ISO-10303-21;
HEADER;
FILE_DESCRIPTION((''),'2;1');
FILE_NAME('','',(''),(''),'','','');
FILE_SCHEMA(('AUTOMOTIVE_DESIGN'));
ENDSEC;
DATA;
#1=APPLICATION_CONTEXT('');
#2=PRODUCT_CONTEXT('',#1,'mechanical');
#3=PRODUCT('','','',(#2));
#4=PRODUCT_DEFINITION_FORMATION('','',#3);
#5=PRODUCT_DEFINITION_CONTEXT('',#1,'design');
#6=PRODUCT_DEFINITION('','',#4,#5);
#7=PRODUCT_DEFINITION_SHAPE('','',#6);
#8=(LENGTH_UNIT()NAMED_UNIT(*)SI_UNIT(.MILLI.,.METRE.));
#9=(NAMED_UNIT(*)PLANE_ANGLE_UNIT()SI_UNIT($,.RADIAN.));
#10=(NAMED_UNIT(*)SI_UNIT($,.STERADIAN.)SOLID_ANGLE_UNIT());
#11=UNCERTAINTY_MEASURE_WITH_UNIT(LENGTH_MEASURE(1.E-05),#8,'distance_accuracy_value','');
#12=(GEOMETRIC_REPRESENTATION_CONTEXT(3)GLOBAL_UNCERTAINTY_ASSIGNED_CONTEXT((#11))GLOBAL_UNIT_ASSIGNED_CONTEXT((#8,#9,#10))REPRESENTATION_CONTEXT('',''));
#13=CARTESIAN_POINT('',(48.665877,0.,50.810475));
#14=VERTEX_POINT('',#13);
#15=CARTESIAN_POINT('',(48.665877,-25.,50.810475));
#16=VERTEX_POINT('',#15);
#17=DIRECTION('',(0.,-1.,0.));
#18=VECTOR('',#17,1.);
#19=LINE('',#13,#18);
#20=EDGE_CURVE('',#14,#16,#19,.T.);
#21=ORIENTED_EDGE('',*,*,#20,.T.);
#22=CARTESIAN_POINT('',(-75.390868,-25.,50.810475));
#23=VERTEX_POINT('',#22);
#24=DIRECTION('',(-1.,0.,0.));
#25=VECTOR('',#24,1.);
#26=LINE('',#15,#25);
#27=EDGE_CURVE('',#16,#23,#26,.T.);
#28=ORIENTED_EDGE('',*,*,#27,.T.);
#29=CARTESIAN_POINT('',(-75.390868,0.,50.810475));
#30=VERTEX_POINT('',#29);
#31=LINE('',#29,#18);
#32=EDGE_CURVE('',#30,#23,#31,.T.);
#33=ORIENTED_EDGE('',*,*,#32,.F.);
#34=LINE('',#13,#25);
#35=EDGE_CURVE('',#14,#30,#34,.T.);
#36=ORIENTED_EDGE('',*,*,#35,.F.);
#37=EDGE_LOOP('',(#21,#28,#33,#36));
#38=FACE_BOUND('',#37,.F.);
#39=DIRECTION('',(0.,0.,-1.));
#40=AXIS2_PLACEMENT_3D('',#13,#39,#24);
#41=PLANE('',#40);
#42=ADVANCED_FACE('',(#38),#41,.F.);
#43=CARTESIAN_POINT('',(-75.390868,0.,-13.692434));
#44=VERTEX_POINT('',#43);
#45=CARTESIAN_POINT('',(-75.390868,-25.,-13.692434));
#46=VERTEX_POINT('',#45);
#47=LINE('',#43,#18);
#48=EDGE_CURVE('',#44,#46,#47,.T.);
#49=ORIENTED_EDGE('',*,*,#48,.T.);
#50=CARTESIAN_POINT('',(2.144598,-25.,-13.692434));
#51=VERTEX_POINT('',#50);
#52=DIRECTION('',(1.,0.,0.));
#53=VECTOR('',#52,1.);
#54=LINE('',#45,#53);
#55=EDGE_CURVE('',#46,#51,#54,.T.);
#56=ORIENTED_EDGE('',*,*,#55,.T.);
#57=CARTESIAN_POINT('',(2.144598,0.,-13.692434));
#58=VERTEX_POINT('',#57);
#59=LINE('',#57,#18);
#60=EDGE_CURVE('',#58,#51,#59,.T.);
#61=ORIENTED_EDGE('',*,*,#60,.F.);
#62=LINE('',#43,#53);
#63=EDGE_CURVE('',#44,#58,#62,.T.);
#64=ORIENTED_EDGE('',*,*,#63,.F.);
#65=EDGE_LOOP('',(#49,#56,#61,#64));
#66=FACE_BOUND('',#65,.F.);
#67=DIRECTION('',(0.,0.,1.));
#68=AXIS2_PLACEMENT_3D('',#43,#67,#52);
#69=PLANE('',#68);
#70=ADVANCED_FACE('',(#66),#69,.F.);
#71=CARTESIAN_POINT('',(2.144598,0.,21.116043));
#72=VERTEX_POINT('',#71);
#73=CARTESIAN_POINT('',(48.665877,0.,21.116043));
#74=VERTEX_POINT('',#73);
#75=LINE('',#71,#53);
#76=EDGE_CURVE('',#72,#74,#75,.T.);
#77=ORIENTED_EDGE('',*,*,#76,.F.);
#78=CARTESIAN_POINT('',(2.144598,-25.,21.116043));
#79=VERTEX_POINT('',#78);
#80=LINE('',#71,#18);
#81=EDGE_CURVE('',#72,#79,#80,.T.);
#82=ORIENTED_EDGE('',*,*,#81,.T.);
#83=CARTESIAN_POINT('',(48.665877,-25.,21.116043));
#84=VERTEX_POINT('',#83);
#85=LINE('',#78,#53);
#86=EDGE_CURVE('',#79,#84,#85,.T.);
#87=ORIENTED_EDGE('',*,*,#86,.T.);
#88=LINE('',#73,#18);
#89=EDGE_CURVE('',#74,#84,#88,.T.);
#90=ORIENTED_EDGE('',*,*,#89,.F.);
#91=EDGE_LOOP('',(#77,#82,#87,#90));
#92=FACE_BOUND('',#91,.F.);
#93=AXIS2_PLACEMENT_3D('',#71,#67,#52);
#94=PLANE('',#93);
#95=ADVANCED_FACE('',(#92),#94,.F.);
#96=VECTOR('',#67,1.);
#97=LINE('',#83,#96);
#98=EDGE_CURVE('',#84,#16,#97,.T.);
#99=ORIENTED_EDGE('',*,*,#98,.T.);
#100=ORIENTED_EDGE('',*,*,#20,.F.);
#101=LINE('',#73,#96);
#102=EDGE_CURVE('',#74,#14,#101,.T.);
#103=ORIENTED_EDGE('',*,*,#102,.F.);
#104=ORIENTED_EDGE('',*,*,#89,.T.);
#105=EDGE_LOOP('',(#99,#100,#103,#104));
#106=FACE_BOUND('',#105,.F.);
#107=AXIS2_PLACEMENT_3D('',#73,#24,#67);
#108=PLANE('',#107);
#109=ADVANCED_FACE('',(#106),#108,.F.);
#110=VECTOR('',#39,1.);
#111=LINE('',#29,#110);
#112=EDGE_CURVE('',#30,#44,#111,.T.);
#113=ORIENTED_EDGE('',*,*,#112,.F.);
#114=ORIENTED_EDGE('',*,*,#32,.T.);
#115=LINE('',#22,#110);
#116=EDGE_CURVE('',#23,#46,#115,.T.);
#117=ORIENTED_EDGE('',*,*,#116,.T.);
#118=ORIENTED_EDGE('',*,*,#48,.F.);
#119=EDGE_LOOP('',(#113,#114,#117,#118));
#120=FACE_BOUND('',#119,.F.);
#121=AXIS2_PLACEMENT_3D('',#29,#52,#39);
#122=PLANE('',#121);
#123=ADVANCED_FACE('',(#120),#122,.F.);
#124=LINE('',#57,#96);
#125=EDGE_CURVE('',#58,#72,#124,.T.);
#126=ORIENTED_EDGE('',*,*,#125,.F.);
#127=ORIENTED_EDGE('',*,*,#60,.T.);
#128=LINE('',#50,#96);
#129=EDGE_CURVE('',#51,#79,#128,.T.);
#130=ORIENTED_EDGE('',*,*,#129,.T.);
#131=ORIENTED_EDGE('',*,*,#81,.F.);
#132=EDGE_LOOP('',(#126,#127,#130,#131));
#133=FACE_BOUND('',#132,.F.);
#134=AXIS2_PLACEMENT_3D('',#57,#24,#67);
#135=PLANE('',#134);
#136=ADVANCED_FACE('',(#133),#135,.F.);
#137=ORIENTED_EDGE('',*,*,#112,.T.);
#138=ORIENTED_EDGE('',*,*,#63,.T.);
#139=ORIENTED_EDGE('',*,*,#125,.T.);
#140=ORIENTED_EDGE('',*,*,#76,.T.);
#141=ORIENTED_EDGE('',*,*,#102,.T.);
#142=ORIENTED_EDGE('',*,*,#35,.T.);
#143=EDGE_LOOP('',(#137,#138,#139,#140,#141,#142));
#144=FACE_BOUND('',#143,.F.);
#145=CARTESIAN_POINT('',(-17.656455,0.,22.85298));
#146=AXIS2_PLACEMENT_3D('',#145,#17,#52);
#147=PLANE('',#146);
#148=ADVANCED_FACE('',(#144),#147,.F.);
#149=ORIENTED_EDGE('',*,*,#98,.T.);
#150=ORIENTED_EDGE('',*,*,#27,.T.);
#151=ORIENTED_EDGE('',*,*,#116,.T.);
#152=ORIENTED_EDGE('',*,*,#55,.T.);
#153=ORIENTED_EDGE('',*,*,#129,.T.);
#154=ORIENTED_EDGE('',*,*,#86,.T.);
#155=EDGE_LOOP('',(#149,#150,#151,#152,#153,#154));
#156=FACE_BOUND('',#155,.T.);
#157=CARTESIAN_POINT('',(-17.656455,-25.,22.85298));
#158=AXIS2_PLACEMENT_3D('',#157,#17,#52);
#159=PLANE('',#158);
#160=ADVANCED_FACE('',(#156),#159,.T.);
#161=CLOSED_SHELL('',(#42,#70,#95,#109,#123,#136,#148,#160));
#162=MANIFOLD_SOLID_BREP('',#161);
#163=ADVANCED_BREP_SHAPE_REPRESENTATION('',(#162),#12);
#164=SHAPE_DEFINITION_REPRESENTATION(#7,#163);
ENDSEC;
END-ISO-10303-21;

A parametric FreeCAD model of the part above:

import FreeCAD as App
import Part
import Sketcher
Q = App.Units.Quantity


def add_polygon(sketch, points):
    """Adds a closed chain of lines whose ends are joined by coincident constraints."""
    first, n = sketch.GeometryCount, len(points)
    for a, b in zip(points, points[1:] + points[:1]):
        sketch.addGeometry(Part.LineSegment(App.Vector(*a, 0), App.Vector(*b, 0)), False)
    for i in range(n):
        sketch.addConstraint(Sketcher.Constraint("Coincident", first + i, 2, first + (i + 1) % n, 1))

doc = App.newDocument("Part")
body = doc.addObject("PartDesign::Body", "Body")

# Sketch on XZ plane
sketch1 = doc.addObject("Sketcher::SketchObject", "Sketch")
body.addObject(sketch1)
sketch1.AttachmentSupport = (doc.XZ_Plane, [""])
sketch1.MapMode = "FlatFace"
add_polygon(sketch1, [(-75, 51), (-75, -14), (2, -14), (2, 21), (49, 21), (49, 51)])  # lines 0-5
sketch1.addConstraint([
    Sketcher.Constraint("Vertical", 0),
    Sketcher.Constraint("Horizontal", 1),
    Sketcher.Constraint("Vertical", 2),
    Sketcher.Constraint("Horizontal", 3),
    Sketcher.Constraint("Vertical", 4),
    Sketcher.Constraint("Horizontal", 5),
    Sketcher.Constraint("DistanceX", 3, 1, 3, 2, Q("46.521279 mm")),
    Sketcher.Constraint("DistanceY", 0, 2, 0, 1, Q("64.502909 mm")),
    Sketcher.Constraint("DistanceY", 4, 1, 4, 2, Q("29.694432 mm")),
    Sketcher.Constraint("DistanceX", 1, 1, 1, 2, Q("77.535466 mm")),
    Sketcher.Constraint("DistanceX", 0, 2, -1, 1, Q("75.390868 mm")),
    Sketcher.Constraint("DistanceY", 0, 2, -1, 1, Q("13.692434 mm")),
])
pad1 = doc.addObject("PartDesign::Pad", "Pad")
body.addObject(pad1)
pad1.Profile = sketch1
pad1.Length = 25

doc.recompute()
